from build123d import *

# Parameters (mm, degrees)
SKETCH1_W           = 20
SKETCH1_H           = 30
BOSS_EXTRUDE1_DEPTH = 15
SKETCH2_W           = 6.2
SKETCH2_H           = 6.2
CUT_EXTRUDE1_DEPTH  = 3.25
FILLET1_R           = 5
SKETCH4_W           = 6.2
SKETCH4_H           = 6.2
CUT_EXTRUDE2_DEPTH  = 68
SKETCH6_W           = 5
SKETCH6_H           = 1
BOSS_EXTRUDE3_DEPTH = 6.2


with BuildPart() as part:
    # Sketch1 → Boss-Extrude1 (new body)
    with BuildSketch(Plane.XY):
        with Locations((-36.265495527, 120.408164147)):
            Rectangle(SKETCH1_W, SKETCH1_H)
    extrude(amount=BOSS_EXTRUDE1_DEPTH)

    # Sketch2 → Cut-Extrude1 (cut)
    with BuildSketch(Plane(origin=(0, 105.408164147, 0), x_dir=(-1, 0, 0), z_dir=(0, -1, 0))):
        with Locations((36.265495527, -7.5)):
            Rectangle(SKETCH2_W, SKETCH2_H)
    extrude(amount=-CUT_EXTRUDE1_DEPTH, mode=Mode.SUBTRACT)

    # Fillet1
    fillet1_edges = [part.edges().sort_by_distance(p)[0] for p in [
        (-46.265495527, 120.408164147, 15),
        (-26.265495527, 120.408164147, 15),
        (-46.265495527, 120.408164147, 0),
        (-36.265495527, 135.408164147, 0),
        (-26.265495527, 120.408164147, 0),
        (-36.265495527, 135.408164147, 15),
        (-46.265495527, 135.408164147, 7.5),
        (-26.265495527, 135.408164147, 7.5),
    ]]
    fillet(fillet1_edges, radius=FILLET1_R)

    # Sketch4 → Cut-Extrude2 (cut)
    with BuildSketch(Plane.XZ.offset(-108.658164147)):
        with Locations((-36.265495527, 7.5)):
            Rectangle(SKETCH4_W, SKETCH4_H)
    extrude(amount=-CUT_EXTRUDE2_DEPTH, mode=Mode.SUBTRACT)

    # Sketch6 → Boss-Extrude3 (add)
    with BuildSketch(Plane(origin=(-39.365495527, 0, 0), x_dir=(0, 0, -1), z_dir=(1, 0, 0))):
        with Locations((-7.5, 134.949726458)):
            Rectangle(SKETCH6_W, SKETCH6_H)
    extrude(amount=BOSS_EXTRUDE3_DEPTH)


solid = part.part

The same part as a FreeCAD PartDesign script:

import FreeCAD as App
import Part
import Sketcher
from FreeCAD import Vector
Q = App.Units.Quantity


def edges_at(feature, points):
    """Names of the edges that pass closest to the given points."""
    edges = feature.Shape.Edges
    near = lambda p: min(range(len(edges)), key=lambda i: edges[i].distToShape(Part.Vertex(*p))[0])
    return sorted({f"Edge{near(p) + 1}" for p in points})


def add_polygon(sketch, points):
    """Adds a closed chain of lines whose ends are joined by coincident constraints."""
    first, n = sketch.GeometryCount, len(points)
    for a, b in zip(points, points[1:] + points[:1]):
        sketch.addGeometry(Part.LineSegment(App.Vector(*a, 0), App.Vector(*b, 0)), False)
    for i in range(n):
        sketch.addConstraint(Sketcher.Constraint("Coincident", first + i, 2, first + (i + 1) % n, 1))

doc = App.newDocument("Part")
body = doc.addObject("PartDesign::Body", "Body")

sketch1 = doc.addObject("Sketcher::SketchObject", "Sketch")
body.addObject(sketch1)
sketch1.AttachmentSupport = (doc.XY_Plane, [""])
sketch1.MapMode = "FlatFace"
add_polygon(sketch1, [(-46.265496, 135.408164), (-46.265496, 105.408164), (-26.265496, 105.408164), (-26.265496, 135.408164)])
sketch1.addConstraint([
    Sketcher.Constraint("Vertical", 0),
    Sketcher.Constraint("Horizontal", 1),
    Sketcher.Constraint("Vertical", 2),
    Sketcher.Constraint("Horizontal", 3),
    Sketcher.Constraint("DistanceX", 1, 1, 1, 2, Q("20 mm")),
    Sketcher.Constraint("DistanceY", 0, 2, 0, 1, Q("30 mm")),
    Sketcher.Constraint("DistanceX", 0, 2, -1, 1, Q("46.265496 mm")),
    Sketcher.Constraint("DistanceY", -1, 1, 0, 2, Q("105.408164 mm")),
])
pad1 = doc.addObject("PartDesign::Pad", "Pad")
body.addObject(pad1)
pad1.Profile = sketch1
pad1.Length = 15

sketch2 = doc.addObject("Sketcher::SketchObject", "Sketch001")
body.addObject(sketch2)
sketch2.AttachmentSupport = (doc.XZ_Plane, [""])
sketch2.MapMode = "FlatFace"
sketch2.AttachmentOffset = App.Placement(Vector(0, 0, -105.408164), App.Rotation())
add_polygon(sketch2, [(-33.165496, 4.4), (-33.165496, 10.6), (-39.365496, 10.6), (-39.365496, 4.4)])
sketch2.addConstraint([
    Sketcher.Constraint("Vertical", 0),
    Sketcher.Constraint("Horizontal", 1),
    Sketcher.Constraint("Vertical", 2),
    Sketcher.Constraint("Horizontal", 3),
    Sketcher.Constraint("Equal", 3, 0),
    Sketcher.Constraint("DistanceX", 1, 2, 1, 1, Q("6.2 mm")),
    Sketcher.Constraint("DistanceY", -1, 1, 0, 2, Q("10.6 mm")),
    Sketcher.Constraint("DistanceX", 0, 2, -1, 1, Q("33.165496 mm")),
])
pocket1 = doc.addObject("PartDesign::Pocket", "Pocket")
body.addObject(pocket1)
pocket1.Profile = sketch2
pocket1.Length = 3.25
doc.recompute()

fillet = doc.addObject("PartDesign::Fillet", "Fillet")
body.addObject(fillet)
fillet.Base = (pocket1, edges_at(pocket1, [
    (-46.265, 120.408, 15),
    (-26.265, 120.408, 15),
    (-46.265, 120.408, 0),
    (-36.265, 135.408, 0),
    (-26.265, 120.408, 0),
    (-36.265, 135.408, 15),
    (-46.265, 135.408, 7.5),
    (-26.265, 135.408, 7.5),
]))
fillet.Radius = 5

sketch3 = doc.addObject("Sketcher::SketchObject", "Sketch002")
body.addObject(sketch3)
sketch3.AttachmentSupport = (doc.XZ_Plane, [""])
sketch3.MapMode = "FlatFace"
sketch3.AttachmentOffset = App.Placement(Vector(0, 0, -108.658164), App.Rotation())
add_polygon(sketch3, [(-39.365496, 10.6), (-39.365496, 4.4), (-33.165496, 4.4), (-33.165496, 10.6)])
sketch3.addConstraint([
    Sketcher.Constraint("Vertical", 0),
    Sketcher.Constraint("Horizontal", 1),
    Sketcher.Constraint("Vertical", 2),
    Sketcher.Constraint("Horizontal", 3),
    Sketcher.Constraint("Equal", 3, 0),
    Sketcher.Constraint("DistanceX", 1, 1, 1, 2, Q("6.2 mm")),
    Sketcher.Constraint("DistanceY", -1, 1, 0, 2, Q("4.4 mm")),
    Sketcher.Constraint("DistanceX", 0, 2, -1, 1, Q("39.365496 mm")),
])
pocket2 = doc.addObject("PartDesign::Pocket", "Pocket001")
body.addObject(pocket2)
pocket2.Profile = sketch3
pocket2.Length = 68

sketch4 = doc.addObject("Sketcher::SketchObject", "Sketch003")
body.addObject(sketch4)
sketch4.AttachmentSupport = (doc.YZ_Plane, [""])
sketch4.MapMode = "FlatFace"
sketch4.AttachmentOffset = App.Placement(Vector(0, 0, -39.365496), App.Rotation())
add_polygon(sketch4, [(135.449726, 10), (134.449726, 10), (134.449726, 5), (135.449726, 5)])
sketch4.addConstraint([
    Sketcher.Constraint("Horizontal", 0),
    Sketcher.Constraint("Vertical", 1),
    Sketcher.Constraint("Horizontal", 2),
    Sketcher.Constraint("Vertical", 3),
    Sketcher.Constraint("DistanceX", 0, 2, 0, 1, Q("1 mm")),
    Sketcher.Constraint("DistanceY", 1, 2, 1, 1, Q("5 mm")),
    Sketcher.Constraint("DistanceY", -1, 1, 0, 2, Q("10 mm")),
    Sketcher.Constraint("DistanceX", -1, 1, 0, 2, Q("134.449726 mm")),
])
pad2 = doc.addObject("PartDesign::Pad", "Pad001")
body.addObject(pad2)
pad2.Profile = sketch4
pad2.Length = 6.2

doc.recompute()
